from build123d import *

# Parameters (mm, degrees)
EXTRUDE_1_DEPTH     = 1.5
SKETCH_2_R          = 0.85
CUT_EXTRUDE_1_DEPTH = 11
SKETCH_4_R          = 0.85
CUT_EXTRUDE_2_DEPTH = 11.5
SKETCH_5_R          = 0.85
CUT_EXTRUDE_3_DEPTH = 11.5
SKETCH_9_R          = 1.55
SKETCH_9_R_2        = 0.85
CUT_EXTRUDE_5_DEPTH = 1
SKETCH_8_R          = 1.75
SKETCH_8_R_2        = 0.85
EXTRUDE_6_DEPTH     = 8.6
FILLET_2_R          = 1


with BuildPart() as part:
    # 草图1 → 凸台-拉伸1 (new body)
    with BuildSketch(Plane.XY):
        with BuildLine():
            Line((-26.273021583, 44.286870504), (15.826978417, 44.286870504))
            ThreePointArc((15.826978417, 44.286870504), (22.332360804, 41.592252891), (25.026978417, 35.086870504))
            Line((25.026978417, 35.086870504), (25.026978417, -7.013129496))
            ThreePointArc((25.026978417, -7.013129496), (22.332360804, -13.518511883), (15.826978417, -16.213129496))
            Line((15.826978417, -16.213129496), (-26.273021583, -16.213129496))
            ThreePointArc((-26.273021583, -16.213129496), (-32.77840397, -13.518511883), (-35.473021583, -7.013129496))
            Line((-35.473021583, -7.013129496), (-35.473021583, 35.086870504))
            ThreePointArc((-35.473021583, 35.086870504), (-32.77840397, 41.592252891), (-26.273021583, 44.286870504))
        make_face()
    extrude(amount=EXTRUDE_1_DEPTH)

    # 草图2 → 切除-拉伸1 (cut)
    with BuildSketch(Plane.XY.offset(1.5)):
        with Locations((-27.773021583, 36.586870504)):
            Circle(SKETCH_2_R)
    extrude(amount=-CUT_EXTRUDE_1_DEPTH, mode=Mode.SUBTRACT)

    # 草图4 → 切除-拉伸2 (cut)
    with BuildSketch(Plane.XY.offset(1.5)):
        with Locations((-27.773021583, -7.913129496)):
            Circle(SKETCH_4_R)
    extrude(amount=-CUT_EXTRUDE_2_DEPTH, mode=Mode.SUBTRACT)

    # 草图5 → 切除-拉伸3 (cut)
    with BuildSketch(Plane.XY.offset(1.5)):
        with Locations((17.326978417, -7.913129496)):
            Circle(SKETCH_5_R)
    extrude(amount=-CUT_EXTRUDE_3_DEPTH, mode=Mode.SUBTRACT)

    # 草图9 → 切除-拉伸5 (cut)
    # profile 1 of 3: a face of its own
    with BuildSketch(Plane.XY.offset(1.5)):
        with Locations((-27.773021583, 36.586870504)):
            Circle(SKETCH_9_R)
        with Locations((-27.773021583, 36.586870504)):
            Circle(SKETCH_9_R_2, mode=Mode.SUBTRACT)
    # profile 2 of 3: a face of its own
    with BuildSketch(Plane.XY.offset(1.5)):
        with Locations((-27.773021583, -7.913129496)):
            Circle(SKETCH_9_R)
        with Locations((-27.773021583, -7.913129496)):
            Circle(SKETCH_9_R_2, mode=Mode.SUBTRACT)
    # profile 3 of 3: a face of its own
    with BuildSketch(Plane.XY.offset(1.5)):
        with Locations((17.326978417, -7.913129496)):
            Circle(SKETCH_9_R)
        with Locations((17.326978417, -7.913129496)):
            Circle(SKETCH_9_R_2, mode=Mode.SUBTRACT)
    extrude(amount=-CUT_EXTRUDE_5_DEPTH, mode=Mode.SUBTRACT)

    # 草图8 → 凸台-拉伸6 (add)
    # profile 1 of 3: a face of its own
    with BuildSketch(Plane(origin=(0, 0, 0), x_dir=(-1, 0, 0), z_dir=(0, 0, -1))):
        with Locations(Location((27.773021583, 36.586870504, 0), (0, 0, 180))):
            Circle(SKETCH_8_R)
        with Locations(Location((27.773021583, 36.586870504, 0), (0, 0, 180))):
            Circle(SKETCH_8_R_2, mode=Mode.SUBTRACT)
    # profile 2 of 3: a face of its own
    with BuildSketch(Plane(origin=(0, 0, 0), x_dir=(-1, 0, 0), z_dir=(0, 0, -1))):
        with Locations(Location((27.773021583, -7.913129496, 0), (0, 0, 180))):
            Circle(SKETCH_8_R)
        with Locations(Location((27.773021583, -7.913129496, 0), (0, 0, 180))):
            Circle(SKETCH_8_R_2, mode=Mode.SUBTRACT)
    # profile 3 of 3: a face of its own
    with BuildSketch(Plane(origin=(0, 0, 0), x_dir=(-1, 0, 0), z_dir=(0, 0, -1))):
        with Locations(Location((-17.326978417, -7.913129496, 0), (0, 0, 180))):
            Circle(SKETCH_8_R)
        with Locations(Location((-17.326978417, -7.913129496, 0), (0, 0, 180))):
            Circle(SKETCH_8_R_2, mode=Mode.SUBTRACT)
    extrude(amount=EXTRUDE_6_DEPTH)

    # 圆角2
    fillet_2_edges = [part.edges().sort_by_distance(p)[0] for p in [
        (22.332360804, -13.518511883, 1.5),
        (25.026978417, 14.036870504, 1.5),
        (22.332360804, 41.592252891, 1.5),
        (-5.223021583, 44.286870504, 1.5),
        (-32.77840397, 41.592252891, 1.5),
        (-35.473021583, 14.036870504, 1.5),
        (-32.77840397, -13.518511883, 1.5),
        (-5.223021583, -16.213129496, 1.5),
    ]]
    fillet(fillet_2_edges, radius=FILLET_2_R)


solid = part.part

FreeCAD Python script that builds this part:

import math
import FreeCAD as App
import Part
import Sketcher

V = App.Vector
Q = App.Units.Quantity


def edges_at(feature, points):
    """Names of the edges that pass closest to the given points."""
    edges = feature.Shape.Edges
    near = lambda p: min(range(len(edges)), key=lambda i: edges[i].distToShape(Part.Vertex(*p))[0])
    return sorted({f"Edge{near(p) + 1}" for p in points})

doc = App.newDocument("Part")
body = doc.addObject("PartDesign::Body", "Body")

sketch1 = body.newObject("Sketcher::SketchObject", "Sketch")
sketch1.AttachmentSupport = (doc.getObject("XY_Plane"), [""])
sketch1.MapMode = "FlatFace"
sketch1.addGeometry(Part.LineSegment(V(15.826978, 44.286871, 0), V(-26.273022, 44.286871, 0)), False)
sketch1.addGeometry(Part.ArcOfCircle(Part.Circle(V(-26.273022, 35.086871, 0), V(0, 0, 1), 9.2), math.radians(90), math.radians(180)), False)
sketch1.addGeometry(Part.LineSegment(V(-35.473022, 35.086871, 0), V(-35.473022, -7.013129, 0)), False)
sketch1.addGeometry(Part.ArcOfCircle(Part.Circle(V(-26.273022, -7.013129, 0), V(0, 0, 1), 9.2), math.radians(180), math.radians(270)), False)
sketch1.addGeometry(Part.LineSegment(V(-26.273022, -16.213129, 0), V(15.826978, -16.213129, 0)), False)
sketch1.addGeometry(Part.ArcOfCircle(Part.Circle(V(15.826978, -7.013129, 0), V(0, 0, 1), 9.2), math.radians(-90), math.radians(0)), False)
sketch1.addGeometry(Part.LineSegment(V(25.026978, -7.013129, 0), V(25.026978, 35.086871, 0)), False)
sketch1.addGeometry(Part.ArcOfCircle(Part.Circle(V(15.826978, 35.086871, 0), V(0, 0, 1), 9.2), math.radians(0), math.radians(90)), False)
sketch1.addConstraint(Sketcher.Constraint("Tangent", 0, 2, 1, 1))
sketch1.addConstraint(Sketcher.Constraint("Tangent", 1, 2, 2, 1))
sketch1.addConstraint(Sketcher.Constraint("Tangent", 2, 2, 3, 1))
sketch1.addConstraint(Sketcher.Constraint("Tangent", 3, 2, 4, 1))
sketch1.addConstraint(Sketcher.Constraint("Tangent", 4, 2, 5, 1))
sketch1.addConstraint(Sketcher.Constraint("Tangent", 5, 2, 6, 1))
sketch1.addConstraint(Sketcher.Constraint("Tangent", 6, 2, 7, 1))
sketch1.addConstraint(Sketcher.Constraint("Tangent", 7, 2, 0, 1))
sketch1.addConstraint(Sketcher.Constraint("Horizontal", 0))
sketch1.addConstraint(Sketcher.Constraint("Vertical", 2))
sketch1.addConstraint(Sketcher.Constraint("Horizontal", 4))
sketch1.addConstraint(Sketcher.Constraint("Vertical", 6))
sketch1.addConstraint(Sketcher.Constraint("Equal", 1, 3))
sketch1.addConstraint(Sketcher.Constraint("Equal", 3, 5))
sketch1.addConstraint(Sketcher.Constraint("Equal", 5, 7))
sketch1.addConstraint(Sketcher.Constraint("Equal", 4, 2))
sketch1.addConstraint(Sketcher.Constraint("Radius", 1, Q("9.2 mm")))
sketch1.addConstraint(Sketcher.Constraint("DistanceX", 0, 2, 0, 1, Q("42.1 mm")))
sketch1.addConstraint(Sketcher.Constraint("DistanceX", 1, 3, -1, 1, Q("26.273022 mm")))
sketch1.addConstraint(Sketcher.Constraint("DistanceY", -1, 1, 1, 3, Q("35.086871 mm")))
pad1 = body.newObject("PartDesign::Pad", "Pad")
pad1.Profile = sketch1
pad1.Length = 1.5

sketch2 = body.newObject("Sketcher::SketchObject", "Sketch001")
sketch2.AttachmentSupport = (doc.getObject("XY_Plane"), [""])
sketch2.MapMode = "FlatFace"
sketch2.AttachmentOffset = App.Placement(V(0, 0, 1.5), App.Rotation())
sketch2.addGeometry(Part.Circle(V(-27.773022, 36.586871, 0), V(0, 0, 1), 0.85), False)
sketch2.addConstraint(Sketcher.Constraint("Diameter", 0, Q("1.7 mm")))
sketch2.addConstraint(Sketcher.Constraint("DistanceX", 0, 3, -1, 1, Q("27.773022 mm")))
sketch2.addConstraint(Sketcher.Constraint("DistanceY", -1, 1, 0, 3, Q("36.586871 mm")))
pocket1 = body.newObject("PartDesign::Pocket", "Pocket")
pocket1.Profile = sketch2
pocket1.Length = 11

sketch3 = body.newObject("Sketcher::SketchObject", "Sketch002")
sketch3.AttachmentSupport = (doc.getObject("XY_Plane"), [""])
sketch3.MapMode = "FlatFace"
sketch3.AttachmentOffset = App.Placement(V(0, 0, 1.5), App.Rotation())
sketch3.addGeometry(Part.Circle(V(-27.773022, -7.913129, 0), V(0, 0, 1), 0.85), False)
sketch3.addConstraint(Sketcher.Constraint("Diameter", 0, Q("1.7 mm")))
sketch3.addConstraint(Sketcher.Constraint("DistanceX", 0, 3, -1, 1, Q("27.773022 mm")))
sketch3.addConstraint(Sketcher.Constraint("DistanceY", 0, 3, -1, 1, Q("7.913129 mm")))
pocket2 = body.newObject("PartDesign::Pocket", "Pocket001")
pocket2.Profile = sketch3
pocket2.Length = 11.5

sketch4 = body.newObject("Sketcher::SketchObject", "Sketch003")
sketch4.AttachmentSupport = (doc.getObject("XY_Plane"), [""])
sketch4.MapMode = "FlatFace"
sketch4.AttachmentOffset = App.Placement(V(0, 0, 1.5), App.Rotation())
sketch4.addGeometry(Part.Circle(V(17.326978, -7.913129, 0), V(0, 0, 1), 0.85), False)
sketch4.addConstraint(Sketcher.Constraint("Diameter", 0, Q("1.7 mm")))
sketch4.addConstraint(Sketcher.Constraint("DistanceX", -1, 1, 0, 3, Q("17.326978 mm")))
sketch4.addConstraint(Sketcher.Constraint("DistanceY", 0, 3, -1, 1, Q("7.913129 mm")))
pocket3 = body.newObject("PartDesign::Pocket", "Pocket002")
pocket3.Profile = sketch4
pocket3.Length = 11.5

sketch5 = body.newObject("Sketcher::SketchObject", "Sketch004")
sketch5.AttachmentSupport = (doc.getObject("XY_Plane"), [""])
sketch5.MapMode = "FlatFace"
sketch5.AttachmentOffset = App.Placement(V(0, 0, 1.5), App.Rotation())
sketch5.addGeometry(Part.Circle(V(-27.773022, 36.586871, 0), V(0, 0, 1), 1.55), False)
sketch5.addGeometry(Part.Circle(V(-27.773022, 36.586871, 0), V(0, 0, 1), 0.85), False)
sketch5.addGeometry(Part.Circle(V(-27.773022, -7.913129, 0), V(0, 0, 1), 1.55), False)
sketch5.addGeometry(Part.Circle(V(-27.773022, -7.913129, 0), V(0, 0, 1), 0.85), False)
sketch5.addGeometry(Part.Circle(V(17.326978, -7.913129, 0), V(0, 0, 1), 1.55), False)
sketch5.addGeometry(Part.Circle(V(17.326978, -7.913129, 0), V(0, 0, 1), 0.85), False)
sketch5.addConstraint(Sketcher.Constraint("Coincident", 1, 3, 0, 3))
sketch5.addConstraint(Sketcher.Constraint("Coincident", 3, 3, 2, 3))
sketch5.addConstraint(Sketcher.Constraint("Coincident", 5, 3, 4, 3))
sketch5.addConstraint(Sketcher.Constraint("Equal", 0, 2))
sketch5.addConstraint(Sketcher.Constraint("Equal", 1, 3))
sketch5.addConstraint(Sketcher.Constraint("Equal", 2, 4))
sketch5.addConstraint(Sketcher.Constraint("Equal", 3, 5))
sketch5.addConstraint(Sketcher.Constraint("Horizontal", 3, 3, 4, 3))
sketch5.addConstraint(Sketcher.Constraint("Vertical", 1, 3, 2, 3))
sketch5.addConstraint(Sketcher.Constraint("Diameter", 0, Q("3.1 mm")))
sketch5.addConstraint(Sketcher.Constraint("Diameter", 1, Q("1.7 mm")))
sketch5.addConstraint(Sketcher.Constraint("DistanceY", 2, 3, 0, 3, Q("44.5 mm")))
sketch5.addConstraint(Sketcher.Constraint("DistanceX", 2, 3, 4, 3, Q("45.1 mm")))
sketch5.addConstraint(Sketcher.Constraint("DistanceX", 0, 3, -1, 1, Q("27.773022 mm")))
sketch5.addConstraint(Sketcher.Constraint("DistanceY", -1, 1, 0, 3, Q("36.586871 mm")))
pocket4 = body.newObject("PartDesign::Pocket", "Pocket003")
pocket4.Profile = sketch5
pocket4.Length = 1

sketch6 = body.newObject("Sketcher::SketchObject", "Sketch005")
sketch6.AttachmentSupport = (doc.getObject("XY_Plane"), [""])
sketch6.MapMode = "FlatFace"
sketch6.addGeometry(Part.Circle(V(-27.773022, 36.586871, 0), V(0, 0, 1), 1.75), False)
sketch6.addGeometry(Part.Circle(V(-27.773022, 36.586871, 0), V(0, 0, 1), 0.85), False)
sketch6.addGeometry(Part.Circle(V(-27.773022, -7.913129, 0), V(0, 0, 1), 1.75), False)
sketch6.addGeometry(Part.Circle(V(-27.773022, -7.913129, 0), V(0, 0, 1), 0.85), False)
sketch6.addGeometry(Part.Circle(V(17.326978, -7.913129, 0), V(0, 0, 1), 1.75), False)
sketch6.addGeometry(Part.Circle(V(17.326978, -7.913129, 0), V(0, 0, 1), 0.85), False)
sketch6.addConstraint(Sketcher.Constraint("Coincident", 1, 3, 0, 3))
sketch6.addConstraint(Sketcher.Constraint("Coincident", 3, 3, 2, 3))
sketch6.addConstraint(Sketcher.Constraint("Coincident", 5, 3, 4, 3))
sketch6.addConstraint(Sketcher.Constraint("Equal", 0, 2))
sketch6.addConstraint(Sketcher.Constraint("Equal", 1, 3))
sketch6.addConstraint(Sketcher.Constraint("Equal", 2, 4))
sketch6.addConstraint(Sketcher.Constraint("Equal", 3, 5))
sketch6.addConstraint(Sketcher.Constraint("Horizontal", 3, 3, 4, 3))
sketch6.addConstraint(Sketcher.Constraint("Vertical", 1, 3, 2, 3))
sketch6.addConstraint(Sketcher.Constraint("Diameter", 0, Q("3.5 mm")))
sketch6.addConstraint(Sketcher.Constraint("Diameter", 1, Q("1.7 mm")))
sketch6.addConstraint(Sketcher.Constraint("DistanceY", 2, 3, 0, 3, Q("44.5 mm")))
sketch6.addConstraint(Sketcher.Constraint("DistanceX", 2, 3, 4, 3, Q("45.1 mm")))
sketch6.addConstraint(Sketcher.Constraint("DistanceX", 0, 3, -1, 1, Q("27.773022 mm")))
sketch6.addConstraint(Sketcher.Constraint("DistanceY", -1, 1, 0, 3, Q("36.586871 mm")))
pad2 = body.newObject("PartDesign::Pad", "Pad001")
pad2.Profile = sketch6
pad2.Length = 8.6
pad2.Reversed = True
doc.recompute()

fillet = body.newObject("PartDesign::Fillet", "Fillet")
fillet.Base = (pad2, edges_at(pad2, [
    (22.332, -13.519, 1.5),
    (25.027, 14.037, 1.5),
    (22.332, 41.592, 1.5),
    (-5.223, 44.287, 1.5),
    (-32.778, 41.592, 1.5),
    (-35.473, 14.037, 1.5),
    (-32.778, -13.519, 1.5),
    (-5.223, -16.213, 1.5),
]))
fillet.Radius = 1

doc.recompute()
